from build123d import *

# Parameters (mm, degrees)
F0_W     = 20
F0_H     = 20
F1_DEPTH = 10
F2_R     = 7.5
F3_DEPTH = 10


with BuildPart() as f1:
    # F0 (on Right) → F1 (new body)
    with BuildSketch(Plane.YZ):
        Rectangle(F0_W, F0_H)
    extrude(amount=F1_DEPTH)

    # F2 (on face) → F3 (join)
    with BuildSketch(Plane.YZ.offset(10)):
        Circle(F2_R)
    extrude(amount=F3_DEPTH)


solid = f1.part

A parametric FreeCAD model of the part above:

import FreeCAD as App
import Part
import Sketcher
Q = App.Units.Quantity


def add_polygon(sketch, points):
    """Adds a closed chain of lines whose ends are joined by coincident constraints."""
    first, n = sketch.GeometryCount, len(points)
    for a, b in zip(points, points[1:] + points[:1]):
        sketch.addGeometry(Part.LineSegment(App.Vector(*a, 0), App.Vector(*b, 0)), False)
    for i in range(n):
        sketch.addConstraint(Sketcher.Constraint("Coincident", first + i, 2, first + (i + 1) % n, 1))

doc = App.newDocument("Part")
params = doc.addObject("Spreadsheet::Sheet", "Params")
for row, (alias, value) in enumerate([
    ("sketch1_width", "20 mm"),
    ("pad1_length", "10 mm"),
    ("sketch2_diameter", "15 mm"),
    ("pad2_length", "10 mm"),
], start=1):
    params.set(f"A{row}", alias)
    params.set(f"B{row}", "=" + value)
    params.setAlias(f"B{row}", alias)

body = doc.addObject("PartDesign::Body", "Body")

sketch1 = body.newObject("Sketcher::SketchObject", "Sketch")
sketch1.AttachmentSupport = (doc.getObject("YZ_Plane"), [""])
sketch1.MapMode = "FlatFace"
add_polygon(sketch1, [(-10, 10), (-10, -10), (10, -10), (10, 10)])
sketch1.addConstraint([
    Sketcher.Constraint("Vertical", 0),
    Sketcher.Constraint("Horizontal", 1),
    Sketcher.Constraint("Vertical", 2),
    Sketcher.Constraint("Horizontal", 3),
    Sketcher.Constraint("Symmetric", 0, 2, 2, 2, -1, 1),
    Sketcher.Constraint("Equal", 3, 0),
    Sketcher.Constraint("DistanceX", 1, 1, 1, 2, Q("20 mm")),
])
sketch1.setExpression("Constraints[10]", "Params.sketch1_width")
pad1 = body.newObject("PartDesign::Pad", "Pad")
pad1.Profile = sketch1
pad1.setExpression("Length", "Params.pad1_length")

sketch2 = body.newObject("Sketcher::SketchObject", "Sketch001")
sketch2.AttachmentSupport = (doc.getObject("YZ_Plane"), [""])
sketch2.MapMode = "FlatFace"
sketch2.AttachmentOffset = App.Placement(App.Vector(0, 0, 10), App.Rotation())
sketch2.addGeometry(Part.Circle(App.Vector(0, 0, 0), App.Vector(0, 0, 1), 8), False)
sketch2.addConstraint([
    Sketcher.Constraint("Coincident", 0, 3, -1, 1),
    Sketcher.Constraint("Diameter", 0, Q("15 mm")),
])
sketch2.setExpression("Constraints[1]", "Params.sketch2_diameter")
pad2 = body.newObject("PartDesign::Pad", "Pad001")
pad2.Profile = sketch2
pad2.setExpression("Length", "Params.pad2_length")

doc.recompute()
